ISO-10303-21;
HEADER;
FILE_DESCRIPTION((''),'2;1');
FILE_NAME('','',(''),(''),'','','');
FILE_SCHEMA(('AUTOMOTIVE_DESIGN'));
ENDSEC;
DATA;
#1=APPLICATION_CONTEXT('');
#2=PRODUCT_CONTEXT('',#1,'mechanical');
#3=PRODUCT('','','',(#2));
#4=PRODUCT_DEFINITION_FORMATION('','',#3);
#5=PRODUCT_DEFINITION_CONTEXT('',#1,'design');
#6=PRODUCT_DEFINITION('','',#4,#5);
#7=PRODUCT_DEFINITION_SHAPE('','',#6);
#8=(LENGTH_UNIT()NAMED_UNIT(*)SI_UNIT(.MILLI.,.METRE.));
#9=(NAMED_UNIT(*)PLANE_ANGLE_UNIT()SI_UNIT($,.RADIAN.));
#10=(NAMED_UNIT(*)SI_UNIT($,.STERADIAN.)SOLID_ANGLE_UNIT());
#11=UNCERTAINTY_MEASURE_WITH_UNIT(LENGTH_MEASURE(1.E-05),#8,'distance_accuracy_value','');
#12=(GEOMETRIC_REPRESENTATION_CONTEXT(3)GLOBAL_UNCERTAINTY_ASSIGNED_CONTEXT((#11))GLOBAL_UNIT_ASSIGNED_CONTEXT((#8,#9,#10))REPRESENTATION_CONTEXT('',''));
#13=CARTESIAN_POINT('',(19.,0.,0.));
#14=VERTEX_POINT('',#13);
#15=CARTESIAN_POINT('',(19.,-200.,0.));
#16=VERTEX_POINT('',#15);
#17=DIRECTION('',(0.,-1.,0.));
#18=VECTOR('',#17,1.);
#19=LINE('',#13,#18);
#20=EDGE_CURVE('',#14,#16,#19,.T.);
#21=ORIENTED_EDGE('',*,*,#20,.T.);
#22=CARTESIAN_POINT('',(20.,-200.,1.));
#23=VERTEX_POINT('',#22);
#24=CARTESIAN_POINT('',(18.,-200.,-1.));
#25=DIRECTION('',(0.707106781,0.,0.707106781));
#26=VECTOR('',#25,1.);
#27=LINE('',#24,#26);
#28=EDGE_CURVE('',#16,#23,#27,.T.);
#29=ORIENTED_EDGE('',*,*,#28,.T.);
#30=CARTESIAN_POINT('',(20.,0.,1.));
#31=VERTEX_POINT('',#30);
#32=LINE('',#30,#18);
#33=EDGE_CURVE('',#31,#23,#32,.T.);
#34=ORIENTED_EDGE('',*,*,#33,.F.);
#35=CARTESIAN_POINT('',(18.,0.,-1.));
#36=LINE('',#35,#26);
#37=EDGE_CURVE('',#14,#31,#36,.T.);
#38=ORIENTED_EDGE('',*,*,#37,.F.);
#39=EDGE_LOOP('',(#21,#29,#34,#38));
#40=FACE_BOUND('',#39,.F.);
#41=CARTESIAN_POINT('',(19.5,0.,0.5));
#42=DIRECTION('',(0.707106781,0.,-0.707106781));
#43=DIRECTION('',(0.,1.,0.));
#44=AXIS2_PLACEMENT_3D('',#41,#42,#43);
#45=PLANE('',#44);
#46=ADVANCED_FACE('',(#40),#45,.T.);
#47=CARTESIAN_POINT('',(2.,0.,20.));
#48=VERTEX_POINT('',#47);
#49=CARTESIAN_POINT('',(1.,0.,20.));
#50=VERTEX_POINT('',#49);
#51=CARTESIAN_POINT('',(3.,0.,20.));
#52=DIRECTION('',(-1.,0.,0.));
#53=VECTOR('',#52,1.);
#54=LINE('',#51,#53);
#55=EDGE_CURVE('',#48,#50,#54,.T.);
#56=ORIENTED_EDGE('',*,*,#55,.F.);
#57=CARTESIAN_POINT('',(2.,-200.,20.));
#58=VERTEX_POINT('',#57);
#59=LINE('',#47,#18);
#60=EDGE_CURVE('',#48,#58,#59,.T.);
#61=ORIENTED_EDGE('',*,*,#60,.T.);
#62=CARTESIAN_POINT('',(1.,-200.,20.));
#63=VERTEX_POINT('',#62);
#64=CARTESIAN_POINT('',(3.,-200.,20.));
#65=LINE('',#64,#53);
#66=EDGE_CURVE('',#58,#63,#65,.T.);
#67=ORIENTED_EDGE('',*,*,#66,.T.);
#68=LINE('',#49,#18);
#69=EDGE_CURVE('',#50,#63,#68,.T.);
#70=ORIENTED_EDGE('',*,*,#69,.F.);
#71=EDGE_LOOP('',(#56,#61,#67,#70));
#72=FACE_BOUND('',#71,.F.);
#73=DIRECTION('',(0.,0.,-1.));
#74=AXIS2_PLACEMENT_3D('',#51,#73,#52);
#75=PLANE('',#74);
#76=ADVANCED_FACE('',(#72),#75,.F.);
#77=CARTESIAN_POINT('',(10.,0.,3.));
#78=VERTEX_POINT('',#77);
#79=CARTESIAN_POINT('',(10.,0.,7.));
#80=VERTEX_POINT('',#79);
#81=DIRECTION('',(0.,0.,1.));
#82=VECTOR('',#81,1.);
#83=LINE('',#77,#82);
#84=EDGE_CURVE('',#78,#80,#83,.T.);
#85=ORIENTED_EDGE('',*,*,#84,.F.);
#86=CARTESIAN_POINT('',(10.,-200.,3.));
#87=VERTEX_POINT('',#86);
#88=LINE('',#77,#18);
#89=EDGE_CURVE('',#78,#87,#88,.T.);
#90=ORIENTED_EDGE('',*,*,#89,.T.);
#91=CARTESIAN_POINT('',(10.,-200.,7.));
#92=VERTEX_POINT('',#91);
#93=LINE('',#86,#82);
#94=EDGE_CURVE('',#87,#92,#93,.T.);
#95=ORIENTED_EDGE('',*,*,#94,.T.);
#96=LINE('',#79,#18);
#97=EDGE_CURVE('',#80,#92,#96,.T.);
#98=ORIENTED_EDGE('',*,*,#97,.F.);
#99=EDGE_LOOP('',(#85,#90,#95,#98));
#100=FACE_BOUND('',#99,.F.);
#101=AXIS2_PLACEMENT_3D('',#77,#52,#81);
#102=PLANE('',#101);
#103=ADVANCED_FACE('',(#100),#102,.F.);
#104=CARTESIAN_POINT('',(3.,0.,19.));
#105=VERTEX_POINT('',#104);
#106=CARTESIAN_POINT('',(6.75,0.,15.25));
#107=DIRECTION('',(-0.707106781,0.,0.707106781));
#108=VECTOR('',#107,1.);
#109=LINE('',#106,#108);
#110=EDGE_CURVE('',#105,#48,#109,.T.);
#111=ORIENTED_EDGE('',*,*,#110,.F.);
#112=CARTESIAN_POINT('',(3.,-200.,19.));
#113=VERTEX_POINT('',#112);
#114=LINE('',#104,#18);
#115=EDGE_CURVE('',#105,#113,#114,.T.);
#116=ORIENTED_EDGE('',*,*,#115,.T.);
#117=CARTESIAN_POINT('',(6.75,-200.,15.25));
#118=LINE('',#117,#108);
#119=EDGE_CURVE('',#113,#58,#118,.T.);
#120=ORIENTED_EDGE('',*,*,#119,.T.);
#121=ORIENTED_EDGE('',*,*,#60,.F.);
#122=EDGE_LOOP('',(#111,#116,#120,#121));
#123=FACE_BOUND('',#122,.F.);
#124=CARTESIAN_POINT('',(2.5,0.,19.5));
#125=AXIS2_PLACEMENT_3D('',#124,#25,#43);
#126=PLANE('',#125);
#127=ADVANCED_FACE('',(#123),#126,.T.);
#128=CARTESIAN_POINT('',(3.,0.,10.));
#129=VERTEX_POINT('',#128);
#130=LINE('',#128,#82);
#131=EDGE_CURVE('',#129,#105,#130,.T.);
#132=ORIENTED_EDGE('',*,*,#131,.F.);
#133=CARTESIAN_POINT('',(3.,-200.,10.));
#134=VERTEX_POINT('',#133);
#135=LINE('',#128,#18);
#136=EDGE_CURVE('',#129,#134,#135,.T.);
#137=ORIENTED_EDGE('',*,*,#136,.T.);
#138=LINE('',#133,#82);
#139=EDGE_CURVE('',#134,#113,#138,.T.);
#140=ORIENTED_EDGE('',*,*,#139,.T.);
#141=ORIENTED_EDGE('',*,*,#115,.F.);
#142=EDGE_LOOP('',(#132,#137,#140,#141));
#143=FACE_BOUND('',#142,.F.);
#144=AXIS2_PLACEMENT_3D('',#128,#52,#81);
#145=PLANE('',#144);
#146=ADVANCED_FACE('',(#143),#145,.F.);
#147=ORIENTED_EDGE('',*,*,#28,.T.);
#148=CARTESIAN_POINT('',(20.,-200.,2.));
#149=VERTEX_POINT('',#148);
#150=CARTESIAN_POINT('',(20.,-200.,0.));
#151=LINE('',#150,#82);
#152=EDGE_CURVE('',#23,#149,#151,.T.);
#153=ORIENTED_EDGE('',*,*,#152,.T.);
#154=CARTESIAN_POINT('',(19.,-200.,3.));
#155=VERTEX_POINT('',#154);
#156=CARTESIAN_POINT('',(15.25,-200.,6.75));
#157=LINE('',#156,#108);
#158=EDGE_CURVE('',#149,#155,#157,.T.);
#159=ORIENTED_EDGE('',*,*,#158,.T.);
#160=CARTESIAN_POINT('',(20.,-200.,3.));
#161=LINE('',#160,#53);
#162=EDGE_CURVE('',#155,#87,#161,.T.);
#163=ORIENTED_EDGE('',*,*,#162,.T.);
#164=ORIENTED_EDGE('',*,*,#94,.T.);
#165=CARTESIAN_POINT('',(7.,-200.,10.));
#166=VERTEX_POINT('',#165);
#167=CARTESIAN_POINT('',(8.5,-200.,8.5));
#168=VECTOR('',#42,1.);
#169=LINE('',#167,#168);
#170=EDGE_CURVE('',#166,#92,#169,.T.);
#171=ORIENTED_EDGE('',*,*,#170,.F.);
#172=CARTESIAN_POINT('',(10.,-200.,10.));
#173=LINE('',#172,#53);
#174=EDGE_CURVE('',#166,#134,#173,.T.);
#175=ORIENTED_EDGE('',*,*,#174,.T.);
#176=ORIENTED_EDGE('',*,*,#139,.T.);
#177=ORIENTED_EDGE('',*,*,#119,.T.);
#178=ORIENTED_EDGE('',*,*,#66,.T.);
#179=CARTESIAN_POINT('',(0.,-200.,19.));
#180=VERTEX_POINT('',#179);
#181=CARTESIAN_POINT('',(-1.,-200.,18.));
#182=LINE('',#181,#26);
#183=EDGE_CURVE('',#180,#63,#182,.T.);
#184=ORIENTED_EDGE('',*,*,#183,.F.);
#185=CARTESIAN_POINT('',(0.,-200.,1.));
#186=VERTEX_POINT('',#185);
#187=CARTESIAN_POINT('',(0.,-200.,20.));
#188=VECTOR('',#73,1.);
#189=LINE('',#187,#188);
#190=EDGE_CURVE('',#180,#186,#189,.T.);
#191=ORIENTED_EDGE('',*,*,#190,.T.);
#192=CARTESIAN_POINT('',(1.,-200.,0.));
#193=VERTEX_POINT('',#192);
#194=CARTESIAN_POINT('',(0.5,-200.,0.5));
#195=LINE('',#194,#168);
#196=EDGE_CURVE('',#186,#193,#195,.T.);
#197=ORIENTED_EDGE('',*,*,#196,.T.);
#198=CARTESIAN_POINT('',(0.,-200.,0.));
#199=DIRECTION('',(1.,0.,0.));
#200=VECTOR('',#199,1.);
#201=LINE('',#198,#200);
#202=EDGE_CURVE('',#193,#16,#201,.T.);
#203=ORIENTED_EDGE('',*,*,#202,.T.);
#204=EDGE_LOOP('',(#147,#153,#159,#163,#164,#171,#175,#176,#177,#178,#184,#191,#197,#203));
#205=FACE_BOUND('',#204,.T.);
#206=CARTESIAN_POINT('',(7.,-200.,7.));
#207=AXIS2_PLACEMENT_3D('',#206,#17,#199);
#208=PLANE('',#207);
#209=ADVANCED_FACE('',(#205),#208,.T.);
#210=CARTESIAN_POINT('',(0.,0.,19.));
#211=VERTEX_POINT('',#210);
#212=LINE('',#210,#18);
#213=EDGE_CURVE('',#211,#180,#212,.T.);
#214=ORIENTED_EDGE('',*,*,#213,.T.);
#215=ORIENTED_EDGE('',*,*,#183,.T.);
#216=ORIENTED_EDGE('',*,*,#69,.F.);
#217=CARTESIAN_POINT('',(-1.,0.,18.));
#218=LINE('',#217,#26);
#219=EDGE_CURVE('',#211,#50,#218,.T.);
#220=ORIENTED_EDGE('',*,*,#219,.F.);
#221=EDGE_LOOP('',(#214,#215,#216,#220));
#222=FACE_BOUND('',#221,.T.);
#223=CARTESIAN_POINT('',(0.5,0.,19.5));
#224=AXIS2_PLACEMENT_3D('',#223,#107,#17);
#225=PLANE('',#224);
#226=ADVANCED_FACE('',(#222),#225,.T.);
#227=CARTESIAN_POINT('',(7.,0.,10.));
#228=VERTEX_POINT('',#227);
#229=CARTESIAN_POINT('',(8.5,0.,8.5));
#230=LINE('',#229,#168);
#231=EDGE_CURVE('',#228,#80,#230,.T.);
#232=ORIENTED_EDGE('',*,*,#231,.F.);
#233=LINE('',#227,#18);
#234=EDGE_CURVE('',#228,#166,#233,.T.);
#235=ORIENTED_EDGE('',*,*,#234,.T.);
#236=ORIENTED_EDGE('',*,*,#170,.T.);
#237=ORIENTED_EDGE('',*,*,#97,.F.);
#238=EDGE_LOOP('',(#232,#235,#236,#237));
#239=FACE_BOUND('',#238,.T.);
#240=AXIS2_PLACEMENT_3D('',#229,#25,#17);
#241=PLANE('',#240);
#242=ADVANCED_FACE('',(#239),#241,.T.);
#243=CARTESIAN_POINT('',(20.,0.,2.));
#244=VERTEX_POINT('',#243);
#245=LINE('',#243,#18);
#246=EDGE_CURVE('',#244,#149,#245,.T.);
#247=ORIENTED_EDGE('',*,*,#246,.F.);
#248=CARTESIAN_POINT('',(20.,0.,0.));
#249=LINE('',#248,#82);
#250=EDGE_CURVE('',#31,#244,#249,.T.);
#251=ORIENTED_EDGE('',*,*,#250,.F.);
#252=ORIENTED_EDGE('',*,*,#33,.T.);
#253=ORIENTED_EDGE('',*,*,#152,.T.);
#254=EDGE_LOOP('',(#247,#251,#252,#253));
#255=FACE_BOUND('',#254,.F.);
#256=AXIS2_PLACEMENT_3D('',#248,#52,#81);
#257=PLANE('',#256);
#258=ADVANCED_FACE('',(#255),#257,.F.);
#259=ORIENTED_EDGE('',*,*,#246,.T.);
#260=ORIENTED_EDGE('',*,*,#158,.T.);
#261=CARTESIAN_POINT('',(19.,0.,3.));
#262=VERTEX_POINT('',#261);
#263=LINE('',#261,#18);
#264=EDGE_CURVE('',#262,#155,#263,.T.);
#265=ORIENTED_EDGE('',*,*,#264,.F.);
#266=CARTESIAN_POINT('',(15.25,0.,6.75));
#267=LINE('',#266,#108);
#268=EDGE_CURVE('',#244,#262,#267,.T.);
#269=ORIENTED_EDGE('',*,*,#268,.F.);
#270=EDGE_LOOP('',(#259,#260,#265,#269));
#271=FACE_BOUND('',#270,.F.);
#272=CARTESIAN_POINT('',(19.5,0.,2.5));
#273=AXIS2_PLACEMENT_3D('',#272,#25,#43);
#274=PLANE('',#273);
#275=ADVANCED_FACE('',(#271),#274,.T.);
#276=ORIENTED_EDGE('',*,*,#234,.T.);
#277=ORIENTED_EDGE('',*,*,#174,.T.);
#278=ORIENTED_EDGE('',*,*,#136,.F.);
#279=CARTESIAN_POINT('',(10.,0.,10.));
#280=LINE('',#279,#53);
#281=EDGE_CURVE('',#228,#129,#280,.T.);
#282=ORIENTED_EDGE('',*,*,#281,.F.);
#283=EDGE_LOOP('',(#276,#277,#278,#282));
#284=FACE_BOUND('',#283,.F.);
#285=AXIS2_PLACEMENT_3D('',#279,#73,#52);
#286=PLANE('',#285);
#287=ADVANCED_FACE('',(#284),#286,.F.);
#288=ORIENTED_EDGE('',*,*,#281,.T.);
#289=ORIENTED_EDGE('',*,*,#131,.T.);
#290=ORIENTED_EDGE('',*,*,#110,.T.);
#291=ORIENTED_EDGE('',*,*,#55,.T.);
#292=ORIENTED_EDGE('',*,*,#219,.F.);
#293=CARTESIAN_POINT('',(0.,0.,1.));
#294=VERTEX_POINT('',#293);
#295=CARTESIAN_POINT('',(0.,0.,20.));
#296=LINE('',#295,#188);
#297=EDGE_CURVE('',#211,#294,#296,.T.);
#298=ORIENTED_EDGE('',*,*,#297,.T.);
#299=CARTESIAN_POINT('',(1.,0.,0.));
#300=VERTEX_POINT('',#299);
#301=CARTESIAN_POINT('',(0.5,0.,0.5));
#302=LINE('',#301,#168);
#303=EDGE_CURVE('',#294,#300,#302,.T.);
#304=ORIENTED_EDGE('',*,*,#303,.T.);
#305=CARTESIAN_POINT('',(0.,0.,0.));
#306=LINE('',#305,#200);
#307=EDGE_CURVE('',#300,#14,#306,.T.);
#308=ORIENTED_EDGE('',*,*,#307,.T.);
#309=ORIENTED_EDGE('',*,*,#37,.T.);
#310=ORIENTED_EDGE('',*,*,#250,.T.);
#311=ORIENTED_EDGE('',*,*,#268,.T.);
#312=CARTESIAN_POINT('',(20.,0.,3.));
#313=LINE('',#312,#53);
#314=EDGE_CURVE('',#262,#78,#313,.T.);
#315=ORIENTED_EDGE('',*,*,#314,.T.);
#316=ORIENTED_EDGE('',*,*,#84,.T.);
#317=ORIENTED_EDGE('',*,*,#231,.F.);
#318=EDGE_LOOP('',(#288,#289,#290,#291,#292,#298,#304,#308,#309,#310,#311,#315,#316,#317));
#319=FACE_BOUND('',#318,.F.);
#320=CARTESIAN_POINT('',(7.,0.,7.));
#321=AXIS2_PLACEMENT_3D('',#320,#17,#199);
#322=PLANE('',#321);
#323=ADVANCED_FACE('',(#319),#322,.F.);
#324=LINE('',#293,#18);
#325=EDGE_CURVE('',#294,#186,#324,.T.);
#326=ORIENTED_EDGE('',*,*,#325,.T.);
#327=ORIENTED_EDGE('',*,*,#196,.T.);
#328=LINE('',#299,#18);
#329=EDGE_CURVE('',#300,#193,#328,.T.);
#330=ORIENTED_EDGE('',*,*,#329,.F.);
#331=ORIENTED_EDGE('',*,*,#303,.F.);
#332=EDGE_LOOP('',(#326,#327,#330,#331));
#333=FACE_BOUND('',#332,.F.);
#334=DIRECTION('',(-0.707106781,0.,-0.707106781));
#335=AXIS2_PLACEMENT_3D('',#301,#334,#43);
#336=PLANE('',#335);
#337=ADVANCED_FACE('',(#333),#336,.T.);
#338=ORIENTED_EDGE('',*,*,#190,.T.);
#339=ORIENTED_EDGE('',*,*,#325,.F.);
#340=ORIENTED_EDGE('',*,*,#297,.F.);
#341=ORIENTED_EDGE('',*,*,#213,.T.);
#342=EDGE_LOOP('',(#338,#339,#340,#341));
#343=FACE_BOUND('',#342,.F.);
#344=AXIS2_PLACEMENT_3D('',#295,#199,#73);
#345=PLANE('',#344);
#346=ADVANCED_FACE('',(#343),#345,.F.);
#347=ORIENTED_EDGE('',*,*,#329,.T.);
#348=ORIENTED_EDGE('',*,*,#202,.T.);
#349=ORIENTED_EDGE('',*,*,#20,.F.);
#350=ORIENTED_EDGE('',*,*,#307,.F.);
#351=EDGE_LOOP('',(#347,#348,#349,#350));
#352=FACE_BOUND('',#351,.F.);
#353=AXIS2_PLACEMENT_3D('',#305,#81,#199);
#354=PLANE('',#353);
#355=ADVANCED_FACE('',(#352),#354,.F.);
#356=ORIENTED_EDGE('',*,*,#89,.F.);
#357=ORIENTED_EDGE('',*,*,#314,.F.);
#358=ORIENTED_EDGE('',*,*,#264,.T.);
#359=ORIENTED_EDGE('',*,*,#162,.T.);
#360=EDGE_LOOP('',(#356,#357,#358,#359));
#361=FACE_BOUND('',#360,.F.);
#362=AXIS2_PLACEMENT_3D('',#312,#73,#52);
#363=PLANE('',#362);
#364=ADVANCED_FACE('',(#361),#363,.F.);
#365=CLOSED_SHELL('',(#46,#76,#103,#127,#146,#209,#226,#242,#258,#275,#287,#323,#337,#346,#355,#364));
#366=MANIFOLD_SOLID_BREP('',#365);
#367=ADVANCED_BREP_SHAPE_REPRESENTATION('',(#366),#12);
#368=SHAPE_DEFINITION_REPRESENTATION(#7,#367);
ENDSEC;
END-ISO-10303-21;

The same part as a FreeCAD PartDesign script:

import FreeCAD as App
import Part
import Sketcher
from FreeCAD import Vector
Q = App.Units.Quantity


def edges_at(feature, points):
    """Names of the edges that pass closest to the given points."""
    edges = feature.Shape.Edges
    near = lambda p: min(range(len(edges)), key=lambda i: edges[i].distToShape(Part.Vertex(*p))[0])
    return sorted({f"Edge{near(p) + 1}" for p in points})

doc = App.newDocument("Part")
body = doc.addObject("PartDesign::Body", "Body")

# Sketch on XZ plane
sketch1 = body.newObject("Sketcher::SketchObject", "Sketch")
sketch1.AttachmentSupport = (doc.getObject("XZ_Plane"), [""])
sketch1.MapMode = "FlatFace"
sketch1.addGeometry(Part.LineSegment(Vector(0, 20, 0), Vector(0, 0, 0)), False)
sketch1.addGeometry(Part.LineSegment(Vector(0, 0, 0), Vector(20, 0, 0)), False)
sketch1.addGeometry(Part.LineSegment(Vector(20, 0, 0), Vector(20, 3, 0)), False)
sketch1.addGeometry(Part.LineSegment(Vector(20, 3, 0), Vector(10, 3, 0)), False)
sketch1.addGeometry(Part.LineSegment(Vector(10, 3, 0), Vector(10, 10, 0)), False)
sketch1.addGeometry(Part.LineSegment(Vector(10, 10, 0), Vector(3, 10, 0)), False)
sketch1.addGeometry(Part.LineSegment(Vector(3, 10, 0), Vector(3, 20, 0)), False)
sketch1.addGeometry(Part.LineSegment(Vector(3, 20, 0), Vector(0, 20, 0)), False)
sketch1.addConstraint(Sketcher.Constraint("Coincident", 0, 2, 1, 1))
sketch1.addConstraint(Sketcher.Constraint("Coincident", 1, 2, 2, 1))
sketch1.addConstraint(Sketcher.Constraint("Coincident", 2, 2, 3, 1))
sketch1.addConstraint(Sketcher.Constraint("Coincident", 3, 2, 4, 1))
sketch1.addConstraint(Sketcher.Constraint("Coincident", 4, 2, 5, 1))
sketch1.addConstraint(Sketcher.Constraint("Coincident", 5, 2, 6, 1))
sketch1.addConstraint(Sketcher.Constraint("Coincident", 6, 2, 7, 1))
sketch1.addConstraint(Sketcher.Constraint("Coincident", 7, 2, 0, 1))
sketch1.addConstraint(Sketcher.Constraint("Vertical", 0))
sketch1.addConstraint(Sketcher.Constraint("Horizontal", 1))
sketch1.addConstraint(Sketcher.Constraint("Vertical", 2))
sketch1.addConstraint(Sketcher.Constraint("Horizontal", 3))
sketch1.addConstraint(Sketcher.Constraint("Vertical", 4))
sketch1.addConstraint(Sketcher.Constraint("Horizontal", 5))
sketch1.addConstraint(Sketcher.Constraint("Vertical", 6))
sketch1.addConstraint(Sketcher.Constraint("Horizontal", 7))
sketch1.addConstraint(Sketcher.Constraint("Coincident", 0, 2, -1, 1))
sketch1.addConstraint(Sketcher.Constraint("Equal", 1, 0))
sketch1.addConstraint(Sketcher.Constraint("Equal", 7, 2))
sketch1.addConstraint(Sketcher.Constraint("Equal", 5, 4))
sketch1.addConstraint(Sketcher.Constraint("DistanceX", 1, 1, 1, 2, Q("20 mm")))
sketch1.addConstraint(Sketcher.Constraint("DistanceX", 3, 2, 3, 1, Q("10 mm")))
sketch1.addConstraint(Sketcher.Constraint("DistanceX", 5, 2, 5, 1, Q("7 mm")))
pad1 = body.newObject("PartDesign::Pad", "Pad")
pad1.Profile = sketch1
pad1.Length = 200
doc.recompute()

chamfer = body.newObject("PartDesign::Chamfer", "Chamfer")
chamfer.Base = (pad1, edges_at(pad1, [
    (0, -100, 20),
    (3, -100, 20),
    (20, -100, 3),
    (20, -100, 0),
    (0, -100, 0),
]))
chamfer.Size = 1
doc.recompute()

chamfer2 = body.newObject("PartDesign::Chamfer", "Chamfer001")
chamfer2.Base = (chamfer, edges_at(chamfer, [(10, -100, 10)]))
chamfer2.Size = 3

doc.recompute()
